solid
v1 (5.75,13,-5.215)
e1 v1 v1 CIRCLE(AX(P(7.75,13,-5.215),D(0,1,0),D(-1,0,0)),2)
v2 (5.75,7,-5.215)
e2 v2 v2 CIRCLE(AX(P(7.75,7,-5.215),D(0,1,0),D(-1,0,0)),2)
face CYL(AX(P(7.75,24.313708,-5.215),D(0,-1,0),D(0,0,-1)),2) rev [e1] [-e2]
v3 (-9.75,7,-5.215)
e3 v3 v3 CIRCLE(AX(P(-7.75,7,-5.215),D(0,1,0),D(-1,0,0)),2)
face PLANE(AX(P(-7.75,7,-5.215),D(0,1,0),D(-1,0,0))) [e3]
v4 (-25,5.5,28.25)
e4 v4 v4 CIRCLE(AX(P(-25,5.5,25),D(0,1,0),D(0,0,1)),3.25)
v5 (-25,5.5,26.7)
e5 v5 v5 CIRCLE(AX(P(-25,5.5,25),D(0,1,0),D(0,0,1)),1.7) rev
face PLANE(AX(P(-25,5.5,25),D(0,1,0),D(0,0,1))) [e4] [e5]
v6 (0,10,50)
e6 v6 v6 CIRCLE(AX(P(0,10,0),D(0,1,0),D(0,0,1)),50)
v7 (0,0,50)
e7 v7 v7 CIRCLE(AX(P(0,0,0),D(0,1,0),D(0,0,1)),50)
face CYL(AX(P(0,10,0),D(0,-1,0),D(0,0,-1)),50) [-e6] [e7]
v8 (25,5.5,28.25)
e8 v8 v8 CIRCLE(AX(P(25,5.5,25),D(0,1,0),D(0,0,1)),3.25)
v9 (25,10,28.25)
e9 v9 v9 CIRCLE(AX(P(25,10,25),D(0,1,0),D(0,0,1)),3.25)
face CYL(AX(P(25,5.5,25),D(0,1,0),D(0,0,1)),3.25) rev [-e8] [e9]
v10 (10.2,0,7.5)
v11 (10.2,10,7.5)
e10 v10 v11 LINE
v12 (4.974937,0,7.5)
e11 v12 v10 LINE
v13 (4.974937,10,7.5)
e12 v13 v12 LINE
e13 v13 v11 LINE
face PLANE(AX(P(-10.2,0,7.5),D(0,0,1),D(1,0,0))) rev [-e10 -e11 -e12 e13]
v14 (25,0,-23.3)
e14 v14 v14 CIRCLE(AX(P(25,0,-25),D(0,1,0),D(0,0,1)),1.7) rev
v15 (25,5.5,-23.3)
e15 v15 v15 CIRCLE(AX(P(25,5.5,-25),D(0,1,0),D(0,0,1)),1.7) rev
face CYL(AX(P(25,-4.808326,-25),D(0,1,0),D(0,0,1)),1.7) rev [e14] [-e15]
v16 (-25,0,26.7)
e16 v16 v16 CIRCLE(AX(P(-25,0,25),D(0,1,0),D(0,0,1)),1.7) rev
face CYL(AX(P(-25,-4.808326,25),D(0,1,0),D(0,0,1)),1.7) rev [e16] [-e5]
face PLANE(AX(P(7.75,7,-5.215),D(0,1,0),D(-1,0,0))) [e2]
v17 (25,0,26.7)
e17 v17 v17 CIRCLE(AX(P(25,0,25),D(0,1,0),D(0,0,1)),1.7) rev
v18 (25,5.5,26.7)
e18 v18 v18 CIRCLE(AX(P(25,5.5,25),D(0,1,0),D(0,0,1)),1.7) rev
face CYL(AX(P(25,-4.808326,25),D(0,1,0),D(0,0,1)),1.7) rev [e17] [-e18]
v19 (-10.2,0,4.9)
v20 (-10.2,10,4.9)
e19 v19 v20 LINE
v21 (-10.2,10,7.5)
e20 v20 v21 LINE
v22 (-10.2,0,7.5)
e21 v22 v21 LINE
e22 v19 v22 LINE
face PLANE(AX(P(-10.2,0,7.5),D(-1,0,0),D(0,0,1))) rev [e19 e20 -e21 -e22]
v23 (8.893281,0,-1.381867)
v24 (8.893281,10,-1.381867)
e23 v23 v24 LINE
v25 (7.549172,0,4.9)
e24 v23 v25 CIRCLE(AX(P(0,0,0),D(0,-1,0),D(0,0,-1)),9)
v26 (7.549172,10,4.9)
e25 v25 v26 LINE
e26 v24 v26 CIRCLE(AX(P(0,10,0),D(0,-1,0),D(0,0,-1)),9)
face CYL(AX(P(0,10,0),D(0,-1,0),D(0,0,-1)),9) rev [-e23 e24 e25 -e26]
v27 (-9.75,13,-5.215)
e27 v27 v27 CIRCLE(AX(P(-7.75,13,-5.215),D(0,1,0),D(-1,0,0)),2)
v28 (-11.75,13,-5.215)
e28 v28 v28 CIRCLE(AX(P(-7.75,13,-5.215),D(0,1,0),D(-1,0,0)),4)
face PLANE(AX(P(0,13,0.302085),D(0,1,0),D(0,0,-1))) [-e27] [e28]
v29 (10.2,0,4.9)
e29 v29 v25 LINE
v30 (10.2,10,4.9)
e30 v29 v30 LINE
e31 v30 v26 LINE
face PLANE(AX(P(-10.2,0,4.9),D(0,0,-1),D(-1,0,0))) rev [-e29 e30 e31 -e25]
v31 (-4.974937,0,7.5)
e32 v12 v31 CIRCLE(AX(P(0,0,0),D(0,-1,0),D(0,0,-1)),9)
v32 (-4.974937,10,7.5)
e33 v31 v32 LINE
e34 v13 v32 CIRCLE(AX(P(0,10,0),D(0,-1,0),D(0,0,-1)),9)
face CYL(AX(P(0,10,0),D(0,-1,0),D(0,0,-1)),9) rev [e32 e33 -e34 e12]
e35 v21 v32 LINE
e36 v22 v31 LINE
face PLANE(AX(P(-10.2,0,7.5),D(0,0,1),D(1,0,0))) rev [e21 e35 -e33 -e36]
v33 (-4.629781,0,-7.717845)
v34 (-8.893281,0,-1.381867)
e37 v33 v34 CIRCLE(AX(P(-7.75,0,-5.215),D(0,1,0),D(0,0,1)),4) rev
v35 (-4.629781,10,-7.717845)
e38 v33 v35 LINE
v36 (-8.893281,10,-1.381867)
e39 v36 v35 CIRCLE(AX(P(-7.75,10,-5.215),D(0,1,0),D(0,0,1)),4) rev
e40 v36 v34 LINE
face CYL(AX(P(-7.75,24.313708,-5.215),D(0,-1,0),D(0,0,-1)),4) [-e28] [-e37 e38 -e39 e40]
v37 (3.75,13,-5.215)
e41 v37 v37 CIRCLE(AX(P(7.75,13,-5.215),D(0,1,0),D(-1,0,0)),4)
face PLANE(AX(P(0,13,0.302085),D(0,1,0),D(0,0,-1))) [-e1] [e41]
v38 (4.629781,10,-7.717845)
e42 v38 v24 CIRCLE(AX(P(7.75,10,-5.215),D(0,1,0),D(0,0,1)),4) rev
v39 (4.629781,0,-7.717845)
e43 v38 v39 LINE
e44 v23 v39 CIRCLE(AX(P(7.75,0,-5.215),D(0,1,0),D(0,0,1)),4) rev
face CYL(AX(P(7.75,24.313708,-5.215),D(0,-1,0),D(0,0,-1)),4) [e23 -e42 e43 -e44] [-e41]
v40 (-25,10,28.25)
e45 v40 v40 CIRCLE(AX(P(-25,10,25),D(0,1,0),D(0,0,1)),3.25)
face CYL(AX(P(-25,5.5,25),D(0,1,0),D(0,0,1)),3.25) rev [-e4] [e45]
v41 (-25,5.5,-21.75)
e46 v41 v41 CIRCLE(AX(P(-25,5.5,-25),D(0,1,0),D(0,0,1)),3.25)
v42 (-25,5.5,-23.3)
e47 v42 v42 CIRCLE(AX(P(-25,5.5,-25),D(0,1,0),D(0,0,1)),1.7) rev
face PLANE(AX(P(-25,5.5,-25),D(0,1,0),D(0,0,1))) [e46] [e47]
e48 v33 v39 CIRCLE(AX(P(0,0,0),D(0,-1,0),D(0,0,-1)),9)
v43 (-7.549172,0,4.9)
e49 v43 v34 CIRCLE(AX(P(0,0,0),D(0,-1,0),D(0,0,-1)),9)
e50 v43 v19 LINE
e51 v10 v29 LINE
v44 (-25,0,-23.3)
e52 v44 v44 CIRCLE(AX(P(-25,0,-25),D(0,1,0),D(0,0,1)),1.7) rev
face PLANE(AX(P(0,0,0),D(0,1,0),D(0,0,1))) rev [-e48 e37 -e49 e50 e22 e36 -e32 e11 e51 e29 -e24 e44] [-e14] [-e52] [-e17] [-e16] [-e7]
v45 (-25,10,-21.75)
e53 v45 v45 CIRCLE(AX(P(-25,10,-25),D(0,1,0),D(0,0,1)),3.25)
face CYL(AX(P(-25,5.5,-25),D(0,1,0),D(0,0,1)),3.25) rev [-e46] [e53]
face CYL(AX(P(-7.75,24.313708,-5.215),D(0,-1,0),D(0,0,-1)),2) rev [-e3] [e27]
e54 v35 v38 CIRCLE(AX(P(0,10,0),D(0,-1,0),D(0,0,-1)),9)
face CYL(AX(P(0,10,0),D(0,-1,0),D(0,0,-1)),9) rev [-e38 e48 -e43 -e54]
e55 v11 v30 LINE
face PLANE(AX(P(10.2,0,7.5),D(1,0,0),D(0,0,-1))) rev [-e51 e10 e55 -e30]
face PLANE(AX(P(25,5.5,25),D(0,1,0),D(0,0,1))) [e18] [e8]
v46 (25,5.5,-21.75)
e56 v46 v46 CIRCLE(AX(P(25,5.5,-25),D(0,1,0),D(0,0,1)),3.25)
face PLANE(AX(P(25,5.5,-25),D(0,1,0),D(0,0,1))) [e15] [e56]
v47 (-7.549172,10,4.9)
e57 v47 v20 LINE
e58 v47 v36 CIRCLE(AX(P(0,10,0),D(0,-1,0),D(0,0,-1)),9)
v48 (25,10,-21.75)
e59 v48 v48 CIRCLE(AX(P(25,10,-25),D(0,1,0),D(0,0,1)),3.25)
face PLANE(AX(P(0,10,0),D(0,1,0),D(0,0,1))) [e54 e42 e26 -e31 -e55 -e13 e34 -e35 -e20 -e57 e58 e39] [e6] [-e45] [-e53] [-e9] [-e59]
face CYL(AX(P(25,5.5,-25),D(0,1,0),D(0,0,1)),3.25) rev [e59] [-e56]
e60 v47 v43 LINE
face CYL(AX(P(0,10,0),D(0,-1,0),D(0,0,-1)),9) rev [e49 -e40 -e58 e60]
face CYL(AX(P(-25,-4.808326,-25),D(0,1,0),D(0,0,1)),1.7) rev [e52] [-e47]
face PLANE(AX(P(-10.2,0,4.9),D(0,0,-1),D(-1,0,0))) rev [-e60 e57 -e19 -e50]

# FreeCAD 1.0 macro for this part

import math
import FreeCAD as App
import Part
import Sketcher

V = App.Vector
Q = App.Units.Quantity

doc = App.newDocument("Part")
body = doc.addObject("PartDesign::Body", "Body")

# Sketch on XZ plane
sketch1 = doc.addObject("Sketcher::SketchObject", "Sketch")
body.addObject(sketch1)
sketch1.AttachmentSupport = (doc.XZ_Plane, [""])
sketch1.MapMode = "FlatFace"
sketch1.addGeometry(Part.Circle(V(0, 0, 0), V(0, 0, 1), 50), False)
sketch1.addConstraint(Sketcher.Constraint("Coincident", 0, 3, -1, 1))
sketch1.addConstraint(Sketcher.Constraint("Diameter", 0, Q("100 mm")))
pad1 = doc.addObject("PartDesign::Pad", "Pad")
body.addObject(pad1)
pad1.Profile = sketch1
pad1.Length = 10
pad1.Reversed = True

# Sketch on XZ plane
sketch2 = doc.addObject("Sketcher::SketchObject", "Sketch001")
body.addObject(sketch2)
sketch2.AttachmentSupport = (doc.XZ_Plane, [""])
sketch2.MapMode = "FlatFace"
sketch2.AttachmentOffset = App.Placement(V(0, 0, -10), App.Rotation())
sketch2.addGeometry(Part.Circle(V(-25, -25, 0), V(0, 0, 1), 1.7), False)
sketch2.addGeometry(Part.Circle(V(25, -25, 0), V(0, 0, 1), 1.7), False)
sketch2.addGeometry(Part.Circle(V(25, 25, 0), V(0, 0, 1), 1.7), False)
sketch2.addGeometry(Part.Circle(V(-25, 25, 0), V(0, 0, 1), 1.7), False)
sketch2.addConstraint(Sketcher.Constraint("Equal", 0, 1))
sketch2.addConstraint(Sketcher.Constraint("Equal", 1, 2))
sketch2.addConstraint(Sketcher.Constraint("Equal", 2, 3))
sketch2.addConstraint(Sketcher.Constraint("Symmetric", 0, 3, 2, 3, -1, 1))
sketch2.addConstraint(Sketcher.Constraint("Symmetric", 1, 3, 3, 3, -1, 1))
sketch2.addConstraint(Sketcher.Constraint("Symmetric", 0, 3, 1, 3, -2))
sketch2.addConstraint(Sketcher.Constraint("Diameter", 0, Q("3.4 mm")))
sketch2.addConstraint(Sketcher.Constraint("DistanceX", 0, 3, -1, 1, Q("25 mm")))
sketch2.addConstraint(Sketcher.Constraint("DistanceY", 0, 3, -1, 1, Q("25 mm")))
pocket1 = doc.addObject("PartDesign::Pocket", "Pocket")
body.addObject(pocket1)
pocket1.Profile = sketch2
pocket1.Length = 10
pocket1.Reversed = True

# Sketch on XZ plane
sketch3 = doc.addObject("Sketcher::SketchObject", "Sketch002")
body.addObject(sketch3)
sketch3.AttachmentSupport = (doc.XZ_Plane, [""])
sketch3.MapMode = "FlatFace"
sketch3.AttachmentOffset = App.Placement(V(0, 0, -10), App.Rotation())
sketch3.addGeometry(Part.Circle(V(-25, -25, 0), V(0, 0, 1), 3.2), False)
sketch3.addGeometry(Part.Circle(V(25, -25, 0), V(0, 0, 1), 3.2), False)
sketch3.addGeometry(Part.Circle(V(25, 25, 0), V(0, 0, 1), 3.2), False)
sketch3.addGeometry(Part.Circle(V(-25, 25, 0), V(0, 0, 1), 3.2), False)
sketch3.addConstraint(Sketcher.Constraint("Equal", 0, 1))
sketch3.addConstraint(Sketcher.Constraint("Equal", 1, 2))
sketch3.addConstraint(Sketcher.Constraint("Equal", 2, 3))
sketch3.addConstraint(Sketcher.Constraint("Symmetric", 0, 3, 2, 3, -1, 1))
sketch3.addConstraint(Sketcher.Constraint("Symmetric", 1, 3, 3, 3, -1, 1))
sketch3.addConstraint(Sketcher.Constraint("Symmetric", 0, 3, 1, 3, -2))
sketch3.addConstraint(Sketcher.Constraint("Diameter", 0, Q("6.5 mm")))
sketch3.addConstraint(Sketcher.Constraint("DistanceX", 0, 3, -1, 1, Q("25 mm")))
sketch3.addConstraint(Sketcher.Constraint("DistanceY", 0, 3, -1, 1, Q("25 mm")))
pocket2 = doc.addObject("PartDesign::Pocket", "Pocket001")
body.addObject(pocket2)
pocket2.Profile = sketch3
pocket2.Length = 4.5
pocket2.Reversed = True

# Sketch on XZ plane
sketch4 = doc.addObject("Sketcher::SketchObject", "Sketch003")
body.addObject(sketch4)
sketch4.AttachmentSupport = (doc.XZ_Plane, [""])
sketch4.MapMode = "FlatFace"
sketch4.addGeometry(Part.Circle(V(0, 0, 0), V(0, 0, 1), 9), False)
sketch4.addConstraint(Sketcher.Constraint("Coincident", 0, 3, -1, 1))
sketch4.addConstraint(Sketcher.Constraint("Diameter", 0, Q("18 mm")))
pocket3 = doc.addObject("PartDesign::Pocket", "Pocket002")
body.addObject(pocket3)
pocket3.Profile = sketch4
pocket3.Type = "ThroughAll"

# Sketch on XZ plane
sketch5 = doc.addObject("Sketcher::SketchObject", "Sketch004")
body.addObject(sketch5)
sketch5.AttachmentSupport = (doc.XZ_Plane, [""])
sketch5.MapMode = "FlatFace"
sketch5.AttachmentOffset = App.Placement(V(0, 0, -10), App.Rotation())
sketch5.addGeometry(Part.LineSegment(V(-10.2, 4.9, 0), V(-10.2, 7.5, 0)), False)
sketch5.addGeometry(Part.LineSegment(V(-10.2, 7.5, 0), V(10.2, 7.5, 0)), False)
sketch5.addGeometry(Part.LineSegment(V(10.2, 7.5, 0), V(10.2, 4.9, 0)), False)
sketch5.addGeometry(Part.LineSegment(V(10.2, 4.9, 0), V(-10.2, 4.9, 0)), False)
sketch5.addConstraint(Sketcher.Constraint("Coincident", 0, 2, 1, 1))
sketch5.addConstraint(Sketcher.Constraint("Coincident", 1, 2, 2, 1))
sketch5.addConstraint(Sketcher.Constraint("Coincident", 2, 2, 3, 1))
sketch5.addConstraint(Sketcher.Constraint("Coincident", 3, 2, 0, 1))
sketch5.addConstraint(Sketcher.Constraint("Vertical", 0))
sketch5.addConstraint(Sketcher.Constraint("Horizontal", 1))
sketch5.addConstraint(Sketcher.Constraint("Vertical", 2))
sketch5.addConstraint(Sketcher.Constraint("Horizontal", 3))
sketch5.addConstraint(Sketcher.Constraint("DistanceX", 1, 1, 1, 2, Q("20.4 mm")))
sketch5.addConstraint(Sketcher.Constraint("DistanceY", 0, 1, 0, 2, Q("2.6 mm")))
sketch5.addConstraint(Sketcher.Constraint("DistanceX", 0, 2, -1, 1, Q("10.2 mm")))
sketch5.addConstraint(Sketcher.Constraint("DistanceY", -1, 1, 0, 2, Q("7.5 mm")))
pocket4 = doc.addObject("PartDesign::Pocket", "Pocket003")
body.addObject(pocket4)
pocket4.Profile = sketch5
pocket4.Length = 10
pocket4.Reversed = True

# Sketch on XZ plane
sketch6 = doc.addObject("Sketcher::SketchObject", "Sketch005")
body.addObject(sketch6)
sketch6.AttachmentSupport = (doc.XZ_Plane, [""])
sketch6.MapMode = "FlatFace"
sketch6.addGeometry(Part.Circle(V(-7.8, -5.2, 0), V(0, 0, 1), 4), False)
sketch6.addGeometry(Part.ArcOfCircle(Part.Circle(V(-7.8, -5.2, 0), V(0, 0, 1), 2), math.radians(108), math.radians(320)), False)
sketch6.addGeometry(Part.ArcOfCircle(Part.Circle(V(0, 0, 0), V(0, 0, 1), 9), math.radians(-158), math.radians(-134)), False)
sketch6.addGeometry(Part.Circle(V(7.8, -5.2, 0), V(0, 0, 1), 4), False)
sketch6.addGeometry(Part.ArcOfCircle(Part.Circle(V(7.8, -5.2, 0), V(0, 0, 1), 2), math.radians(-140), math.radians(72)), False)
sketch6.addGeometry(Part.ArcOfCircle(Part.Circle(V(0, 0, 0), V(0, 0, 1), 9), math.radians(-46), math.radians(-22)), False)
sketch6.addConstraint(Sketcher.Constraint("Coincident", 1, 1, 2, 1))
sketch6.addConstraint(Sketcher.Constraint("Coincident", 2, 2, 1, 2))
sketch6.addConstraint(Sketcher.Constraint("Coincident", 4, 1, 5, 1))
sketch6.addConstraint(Sketcher.Constraint("Coincident", 5, 2, 4, 2))
sketch6.addConstraint(Sketcher.Constraint("Coincident", 2, 3, -1, 1))
sketch6.addConstraint(Sketcher.Constraint("Coincident", 5, 3, -1, 1))
sketch6.addConstraint(Sketcher.Constraint("Coincident", 1, 3, 0, 3))
sketch6.addConstraint(Sketcher.Constraint("Coincident", 4, 3, 3, 3))
sketch6.addConstraint(Sketcher.Constraint("Equal", 0, 3))
sketch6.addConstraint(Sketcher.Constraint("Equal", 1, 4))
sketch6.addConstraint(Sketcher.Constraint("Equal", 2, 5))
sketch6.addConstraint(Sketcher.Constraint("Symmetric", 0, 3, 3, 3, -2))
sketch6.addConstraint(Sketcher.Constraint("Diameter", 0, Q("8 mm")))
sketch6.addConstraint(Sketcher.Constraint("Radius", 1, Q("2 mm")))
sketch6.addConstraint(Sketcher.Constraint("Radius", 2, Q("9 mm")))
sketch6.addConstraint(Sketcher.Constraint("DistanceX", 0, 3, 3, 3, Q("15.5 mm")))
sketch6.addConstraint(Sketcher.Constraint("DistanceY", 0, 3, -1, 1, Q("5.215 mm")))
pad2 = doc.addObject("PartDesign::Pad", "Pad001")
body.addObject(pad2)
pad2.Profile = sketch6
pad2.Length = 13
pad2.Reversed = True

# Sketch on XZ plane
sketch7 = doc.addObject("Sketcher::SketchObject", "Sketch006")
body.addObject(sketch7)
sketch7.AttachmentSupport = (doc.XZ_Plane, [""])
sketch7.MapMode = "FlatFace"
sketch7.AttachmentOffset = App.Placement(V(0, 0, -13), App.Rotation())
sketch7.addGeometry(Part.Circle(V(-7.8, -5.2, 0), V(0, 0, 1), 2), False)
sketch7.addGeometry(Part.Circle(V(7.8, -5.2, 0), V(0, 0, 1), 2), False)
sketch7.addConstraint(Sketcher.Constraint("Equal", 0, 1))
sketch7.addConstraint(Sketcher.Constraint("Symmetric", 0, 3, 1, 3, -2))
sketch7.addConstraint(Sketcher.Constraint("Diameter", 0, Q("4 mm")))
sketch7.addConstraint(Sketcher.Constraint("DistanceX", 0, 3, 1, 3, Q("15.5 mm")))
sketch7.addConstraint(Sketcher.Constraint("DistanceY", 0, 3, -1, 1, Q("5.215 mm")))
pocket5 = doc.addObject("PartDesign::Pocket", "Pocket004")
body.addObject(pocket5)
pocket5.Profile = sketch7
pocket5.Length = 6
pocket5.Reversed = True

doc.recompute()
